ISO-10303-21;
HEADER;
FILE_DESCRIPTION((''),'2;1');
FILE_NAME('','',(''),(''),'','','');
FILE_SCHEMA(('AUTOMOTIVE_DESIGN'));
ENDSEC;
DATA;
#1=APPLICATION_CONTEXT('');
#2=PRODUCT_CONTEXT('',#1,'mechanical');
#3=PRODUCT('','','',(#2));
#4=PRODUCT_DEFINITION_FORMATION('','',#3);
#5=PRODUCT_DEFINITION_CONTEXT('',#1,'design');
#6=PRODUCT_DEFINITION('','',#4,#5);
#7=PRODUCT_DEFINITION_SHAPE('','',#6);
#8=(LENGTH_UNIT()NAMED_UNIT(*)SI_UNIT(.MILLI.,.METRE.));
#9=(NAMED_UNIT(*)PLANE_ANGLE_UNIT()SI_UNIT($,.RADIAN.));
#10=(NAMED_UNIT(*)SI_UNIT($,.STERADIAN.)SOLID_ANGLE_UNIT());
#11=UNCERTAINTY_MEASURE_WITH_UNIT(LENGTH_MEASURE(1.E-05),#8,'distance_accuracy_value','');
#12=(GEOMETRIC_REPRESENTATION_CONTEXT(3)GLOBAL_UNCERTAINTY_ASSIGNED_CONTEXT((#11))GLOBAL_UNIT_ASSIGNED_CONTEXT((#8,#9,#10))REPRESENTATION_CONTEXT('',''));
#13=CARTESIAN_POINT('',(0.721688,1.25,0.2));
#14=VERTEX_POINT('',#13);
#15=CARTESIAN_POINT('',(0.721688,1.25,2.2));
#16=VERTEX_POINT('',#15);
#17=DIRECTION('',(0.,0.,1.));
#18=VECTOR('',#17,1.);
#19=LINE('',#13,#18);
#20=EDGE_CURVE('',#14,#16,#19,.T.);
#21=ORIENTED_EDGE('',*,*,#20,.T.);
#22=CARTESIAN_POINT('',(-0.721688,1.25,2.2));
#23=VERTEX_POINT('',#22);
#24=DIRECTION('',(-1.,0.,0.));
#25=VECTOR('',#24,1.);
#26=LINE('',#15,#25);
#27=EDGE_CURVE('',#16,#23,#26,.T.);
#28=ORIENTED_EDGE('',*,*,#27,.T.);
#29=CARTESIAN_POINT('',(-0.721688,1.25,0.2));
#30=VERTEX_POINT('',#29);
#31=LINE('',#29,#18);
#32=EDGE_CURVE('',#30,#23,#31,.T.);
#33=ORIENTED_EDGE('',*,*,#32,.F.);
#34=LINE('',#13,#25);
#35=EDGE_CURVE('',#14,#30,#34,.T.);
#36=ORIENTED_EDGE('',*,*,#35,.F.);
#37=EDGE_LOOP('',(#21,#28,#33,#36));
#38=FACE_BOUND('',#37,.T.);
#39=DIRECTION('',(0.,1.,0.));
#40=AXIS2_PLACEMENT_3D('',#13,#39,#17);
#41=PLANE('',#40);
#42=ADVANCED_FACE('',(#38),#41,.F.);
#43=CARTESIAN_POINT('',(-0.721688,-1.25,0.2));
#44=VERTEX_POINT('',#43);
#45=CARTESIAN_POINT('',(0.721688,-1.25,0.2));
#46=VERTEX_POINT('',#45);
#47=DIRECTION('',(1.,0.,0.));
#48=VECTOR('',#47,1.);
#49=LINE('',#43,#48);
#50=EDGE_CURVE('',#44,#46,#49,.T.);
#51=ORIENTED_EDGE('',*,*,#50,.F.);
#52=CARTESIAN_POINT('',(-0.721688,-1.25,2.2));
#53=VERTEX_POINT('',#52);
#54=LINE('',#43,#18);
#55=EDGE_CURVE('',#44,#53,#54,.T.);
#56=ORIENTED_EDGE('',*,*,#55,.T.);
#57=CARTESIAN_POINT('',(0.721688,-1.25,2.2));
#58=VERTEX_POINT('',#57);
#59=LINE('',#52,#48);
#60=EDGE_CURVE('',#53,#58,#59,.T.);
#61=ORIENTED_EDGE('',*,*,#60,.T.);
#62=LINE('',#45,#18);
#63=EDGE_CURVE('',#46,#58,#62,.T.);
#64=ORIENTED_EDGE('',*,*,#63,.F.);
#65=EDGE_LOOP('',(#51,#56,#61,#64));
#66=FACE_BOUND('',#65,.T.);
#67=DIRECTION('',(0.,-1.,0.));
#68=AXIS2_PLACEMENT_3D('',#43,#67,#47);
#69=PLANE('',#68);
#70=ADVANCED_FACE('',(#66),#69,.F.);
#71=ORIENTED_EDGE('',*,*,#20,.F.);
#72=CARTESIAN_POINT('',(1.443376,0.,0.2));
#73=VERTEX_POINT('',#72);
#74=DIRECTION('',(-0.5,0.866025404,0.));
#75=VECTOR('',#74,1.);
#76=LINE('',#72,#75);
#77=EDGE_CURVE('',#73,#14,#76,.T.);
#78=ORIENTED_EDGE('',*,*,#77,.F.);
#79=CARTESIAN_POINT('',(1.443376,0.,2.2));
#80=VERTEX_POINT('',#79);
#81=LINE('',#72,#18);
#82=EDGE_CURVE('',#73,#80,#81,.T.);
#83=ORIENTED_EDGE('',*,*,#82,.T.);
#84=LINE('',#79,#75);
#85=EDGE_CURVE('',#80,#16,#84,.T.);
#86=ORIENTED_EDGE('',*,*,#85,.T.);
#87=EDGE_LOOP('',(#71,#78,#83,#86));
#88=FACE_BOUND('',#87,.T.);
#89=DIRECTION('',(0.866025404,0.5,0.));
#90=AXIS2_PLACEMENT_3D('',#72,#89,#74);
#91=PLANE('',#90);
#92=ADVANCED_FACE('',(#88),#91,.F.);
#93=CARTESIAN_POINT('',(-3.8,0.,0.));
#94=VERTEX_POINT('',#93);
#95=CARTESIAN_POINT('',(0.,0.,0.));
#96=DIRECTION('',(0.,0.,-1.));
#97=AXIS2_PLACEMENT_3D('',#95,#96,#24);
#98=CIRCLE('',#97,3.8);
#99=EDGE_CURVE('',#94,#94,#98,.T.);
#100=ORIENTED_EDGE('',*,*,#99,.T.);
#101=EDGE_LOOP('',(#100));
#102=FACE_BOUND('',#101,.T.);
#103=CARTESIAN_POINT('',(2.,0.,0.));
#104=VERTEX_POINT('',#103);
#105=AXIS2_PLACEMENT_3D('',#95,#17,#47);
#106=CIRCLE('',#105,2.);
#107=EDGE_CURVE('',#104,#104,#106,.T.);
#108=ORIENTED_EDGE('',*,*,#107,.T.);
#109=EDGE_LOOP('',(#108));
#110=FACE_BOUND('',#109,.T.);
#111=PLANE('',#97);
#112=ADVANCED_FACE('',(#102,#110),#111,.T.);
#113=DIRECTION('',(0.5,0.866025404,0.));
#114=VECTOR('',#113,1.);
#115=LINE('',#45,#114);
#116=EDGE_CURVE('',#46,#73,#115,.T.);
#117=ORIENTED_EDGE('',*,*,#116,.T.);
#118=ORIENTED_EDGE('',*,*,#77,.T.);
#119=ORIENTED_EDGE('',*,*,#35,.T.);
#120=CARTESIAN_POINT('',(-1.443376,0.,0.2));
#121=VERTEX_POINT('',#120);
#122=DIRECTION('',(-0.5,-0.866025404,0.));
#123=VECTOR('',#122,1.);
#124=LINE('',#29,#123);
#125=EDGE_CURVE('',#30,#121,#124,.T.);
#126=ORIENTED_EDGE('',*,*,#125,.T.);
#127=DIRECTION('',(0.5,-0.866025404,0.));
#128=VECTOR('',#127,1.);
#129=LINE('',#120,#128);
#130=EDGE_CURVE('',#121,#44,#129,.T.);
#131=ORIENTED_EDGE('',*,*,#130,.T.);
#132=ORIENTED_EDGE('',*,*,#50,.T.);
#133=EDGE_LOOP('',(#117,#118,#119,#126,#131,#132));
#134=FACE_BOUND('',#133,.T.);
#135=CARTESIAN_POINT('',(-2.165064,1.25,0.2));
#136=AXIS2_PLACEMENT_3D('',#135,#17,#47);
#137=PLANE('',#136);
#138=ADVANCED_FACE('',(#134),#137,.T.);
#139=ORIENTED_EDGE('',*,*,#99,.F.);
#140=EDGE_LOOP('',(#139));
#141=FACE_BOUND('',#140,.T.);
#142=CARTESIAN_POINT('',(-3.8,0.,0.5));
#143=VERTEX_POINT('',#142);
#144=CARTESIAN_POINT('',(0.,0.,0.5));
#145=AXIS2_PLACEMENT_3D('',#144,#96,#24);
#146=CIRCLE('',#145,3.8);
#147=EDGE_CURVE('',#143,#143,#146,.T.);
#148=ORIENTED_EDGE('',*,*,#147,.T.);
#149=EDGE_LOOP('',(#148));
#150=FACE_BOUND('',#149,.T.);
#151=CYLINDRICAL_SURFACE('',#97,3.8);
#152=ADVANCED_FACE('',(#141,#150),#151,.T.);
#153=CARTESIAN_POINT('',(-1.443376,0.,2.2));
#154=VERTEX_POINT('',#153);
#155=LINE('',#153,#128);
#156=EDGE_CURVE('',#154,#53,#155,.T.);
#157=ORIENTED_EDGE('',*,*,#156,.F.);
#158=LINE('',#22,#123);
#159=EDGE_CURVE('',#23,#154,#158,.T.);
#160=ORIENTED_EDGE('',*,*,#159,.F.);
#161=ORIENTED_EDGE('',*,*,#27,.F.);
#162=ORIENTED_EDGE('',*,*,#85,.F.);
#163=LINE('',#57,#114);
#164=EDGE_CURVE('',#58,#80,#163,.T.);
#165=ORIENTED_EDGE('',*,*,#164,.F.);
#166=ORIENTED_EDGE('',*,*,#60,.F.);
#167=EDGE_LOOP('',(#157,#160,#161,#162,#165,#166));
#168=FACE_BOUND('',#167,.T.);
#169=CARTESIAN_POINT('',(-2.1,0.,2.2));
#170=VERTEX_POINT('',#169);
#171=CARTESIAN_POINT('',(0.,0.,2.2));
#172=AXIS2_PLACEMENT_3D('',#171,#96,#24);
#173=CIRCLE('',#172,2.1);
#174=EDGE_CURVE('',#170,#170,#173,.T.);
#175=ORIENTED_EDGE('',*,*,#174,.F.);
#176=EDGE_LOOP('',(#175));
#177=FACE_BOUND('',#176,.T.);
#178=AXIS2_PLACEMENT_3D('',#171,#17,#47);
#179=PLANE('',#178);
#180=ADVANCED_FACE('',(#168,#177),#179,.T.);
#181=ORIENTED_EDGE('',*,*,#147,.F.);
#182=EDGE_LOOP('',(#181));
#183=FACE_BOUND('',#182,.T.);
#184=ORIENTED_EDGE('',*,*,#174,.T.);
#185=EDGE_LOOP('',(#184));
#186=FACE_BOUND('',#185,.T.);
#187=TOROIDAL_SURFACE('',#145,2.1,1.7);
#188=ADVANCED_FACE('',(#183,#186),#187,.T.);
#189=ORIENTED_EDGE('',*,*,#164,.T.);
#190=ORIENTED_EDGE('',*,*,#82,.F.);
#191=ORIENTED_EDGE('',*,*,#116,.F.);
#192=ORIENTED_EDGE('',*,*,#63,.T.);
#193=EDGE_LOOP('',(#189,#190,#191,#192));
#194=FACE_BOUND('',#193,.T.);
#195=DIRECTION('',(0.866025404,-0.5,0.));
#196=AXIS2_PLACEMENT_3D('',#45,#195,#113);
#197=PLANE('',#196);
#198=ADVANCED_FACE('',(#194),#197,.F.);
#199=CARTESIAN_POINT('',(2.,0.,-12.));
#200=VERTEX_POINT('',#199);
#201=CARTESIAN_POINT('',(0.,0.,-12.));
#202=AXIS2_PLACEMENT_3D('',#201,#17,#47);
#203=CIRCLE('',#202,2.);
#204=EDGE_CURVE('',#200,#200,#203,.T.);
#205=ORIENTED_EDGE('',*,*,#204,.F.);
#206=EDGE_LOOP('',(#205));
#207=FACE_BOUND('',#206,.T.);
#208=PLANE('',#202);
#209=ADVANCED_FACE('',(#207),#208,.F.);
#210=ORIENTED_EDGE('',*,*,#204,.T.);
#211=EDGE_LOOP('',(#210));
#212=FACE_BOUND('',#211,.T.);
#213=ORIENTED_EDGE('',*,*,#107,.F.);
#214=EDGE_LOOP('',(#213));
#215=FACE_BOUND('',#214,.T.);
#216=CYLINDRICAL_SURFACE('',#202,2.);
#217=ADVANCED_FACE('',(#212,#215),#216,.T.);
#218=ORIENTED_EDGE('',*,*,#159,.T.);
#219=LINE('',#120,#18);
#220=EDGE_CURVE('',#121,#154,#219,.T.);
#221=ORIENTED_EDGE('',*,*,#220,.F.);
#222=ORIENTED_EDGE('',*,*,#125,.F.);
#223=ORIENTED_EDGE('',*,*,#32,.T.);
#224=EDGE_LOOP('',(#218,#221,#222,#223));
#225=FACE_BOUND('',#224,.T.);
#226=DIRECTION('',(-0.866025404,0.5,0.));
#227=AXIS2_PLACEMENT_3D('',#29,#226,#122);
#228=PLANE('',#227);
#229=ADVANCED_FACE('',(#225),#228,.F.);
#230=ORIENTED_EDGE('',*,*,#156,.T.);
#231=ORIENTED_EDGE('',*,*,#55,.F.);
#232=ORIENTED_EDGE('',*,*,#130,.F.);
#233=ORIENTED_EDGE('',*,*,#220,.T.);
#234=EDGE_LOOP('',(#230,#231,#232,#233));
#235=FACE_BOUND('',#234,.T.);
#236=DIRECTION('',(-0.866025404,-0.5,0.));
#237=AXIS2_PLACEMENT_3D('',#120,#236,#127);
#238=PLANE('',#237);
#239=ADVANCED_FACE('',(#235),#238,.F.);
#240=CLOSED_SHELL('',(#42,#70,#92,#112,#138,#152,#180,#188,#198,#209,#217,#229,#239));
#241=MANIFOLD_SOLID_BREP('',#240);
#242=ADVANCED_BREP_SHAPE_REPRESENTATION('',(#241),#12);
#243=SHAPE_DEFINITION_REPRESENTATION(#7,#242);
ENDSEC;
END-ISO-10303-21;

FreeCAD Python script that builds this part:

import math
import FreeCAD as App
import Part
import Sketcher

V = App.Vector
Q = App.Units.Quantity

doc = App.newDocument("Part")
params = doc.addObject("Spreadsheet::Sheet", "Params")
for row, (alias, value) in enumerate([
    ("sketch1_diameter", "4 mm"),
    ("pad1_length", "12 mm"),
    ("sketch2_radius", "1.7 mm"),
    ("sketch2_width", "3.8 mm"),
    ("sketch2_height", "0.5 mm"),
    ("revolution_angle", "360 deg"),
    ("pocket1_length", "2 mm"),
], start=1):
    params.set(f"A{row}", alias)
    params.set(f"B{row}", "=" + value)
    params.setAlias(f"B{row}", alias)

body = doc.addObject("PartDesign::Body", "Body")

sketch1 = doc.addObject("Sketcher::SketchObject", "Sketch")
body.addObject(sketch1)
sketch1.AttachmentSupport = (doc.XY_Plane, [""])
sketch1.MapMode = "FlatFace"
sketch1.addGeometry(Part.Circle(V(0, 0, 0), V(0, 0, 1), 2), False)
sketch1.addConstraint([
    Sketcher.Constraint("Coincident", 0, 3, -1, 1),
    Sketcher.Constraint("Diameter", 0, 4.0),
])
sketch1.setExpression("Constraints[1]", "Params.sketch1_diameter")
pad1 = doc.addObject("PartDesign::Pad", "Pad")
body.addObject(pad1)
pad1.Profile = sketch1
pad1.setExpression("Length", "Params.pad1_length")
pad1.Reversed = True

sketch2 = doc.addObject("Sketcher::SketchObject", "Sketch001")
body.addObject(sketch2)
sketch2.AttachmentSupport = (doc.YZ_Plane, [""])
sketch2.MapMode = "FlatFace"
sketch2.addGeometry([
    Part.LineSegment(V(0, 0, 0), V(3.8, 0, 0)),
    Part.LineSegment(V(3.8, 0, 0), V(3.8, 0.5, 0)),
    Part.ArcOfCircle(Part.Circle(V(2.1, 0.5, 0), V(0, 0, 1), 1.7), math.radians(0), math.radians(90)),
    Part.LineSegment(V(2.1, 2.2, 0), V(0, 2.2, 0)),
    Part.LineSegment(V(0, 2.2, 0), V(0, 0, 0)),
], False)
sketch2.addConstraint([
    Sketcher.Constraint("Coincident", 0, 2, 1, 1),
    Sketcher.Constraint("Tangent", 1, 2, 2, 1),
    Sketcher.Constraint("Tangent", 2, 2, 3, 1),
    Sketcher.Constraint("Coincident", 3, 2, 4, 1),
    Sketcher.Constraint("Coincident", 4, 2, 0, 1),
    Sketcher.Constraint("Horizontal", 0),
    Sketcher.Constraint("Vertical", 1),
    Sketcher.Constraint("Horizontal", 3),
    Sketcher.Constraint("Vertical", 4),
    Sketcher.Constraint("Coincident", 4, 2, -1, 1),
    Sketcher.Constraint("Radius", 2, 1.7),
    Sketcher.Constraint("DistanceX", 0, 1, 0, 2, 3.8),
    Sketcher.Constraint("DistanceY", 1, 1, 1, 2, 0.5),
])
sketch2.setExpression("Constraints[10]", "Params.sketch2_radius")
sketch2.setExpression("Constraints[11]", "Params.sketch2_width")
sketch2.setExpression("Constraints[12]", "Params.sketch2_height")
revolution = doc.addObject("PartDesign::Revolution", "Revolution")
body.addObject(revolution)
revolution.Profile = sketch2
revolution.ReferenceAxis = (sketch2, ["V_Axis"])
revolution.setExpression("Angle", "Params.revolution_angle")

sketch3 = doc.addObject("Sketcher::SketchObject", "Sketch002")
body.addObject(sketch3)
sketch3.AttachmentSupport = (doc.XY_Plane, [""])
sketch3.MapMode = "FlatFace"
sketch3.AttachmentOffset = App.Placement(V(0, 0, 2.2), App.Rotation())
sketch3.addGeometry([
    Part.LineSegment(V(-0.7, 1.2, 0), V(-1.4, 0, 0)),
    Part.LineSegment(V(-1.4, 0, 0), V(-0.7, -1.2, 0)),
    Part.LineSegment(V(-0.7, -1.2, 0), V(0.7, -1.2, 0)),
    Part.LineSegment(V(0.7, -1.2, 0), V(1.4, 0, 0)),
    Part.LineSegment(V(1.4, 0, 0), V(0.7, 1.2, 0)),
    Part.LineSegment(V(0.7, 1.2, 0), V(-0.7, 1.2, 0)),
], False)
sketch3.addConstraint([
    Sketcher.Constraint("Coincident", 0, 2, 1, 1),
    Sketcher.Constraint("Coincident", 1, 2, 2, 1),
    Sketcher.Constraint("Coincident", 2, 2, 3, 1),
    Sketcher.Constraint("Coincident", 3, 2, 4, 1),
    Sketcher.Constraint("Coincident", 4, 2, 5, 1),
    Sketcher.Constraint("Coincident", 5, 2, 0, 1),
    Sketcher.Constraint("Horizontal", 2),
    Sketcher.Constraint("Horizontal", 5),
    Sketcher.Constraint("Symmetric", 0, 2, 3, 2, -1, 1),
    Sketcher.Constraint("Symmetric", 1, 2, 4, 2, -1, 1),
    Sketcher.Constraint("PointOnObject", 0, 2, -1),
    Sketcher.Constraint("Parallel", 0, 3),
    Sketcher.Constraint("Vertical", 2, 2, 4, 2),
    Sketcher.Constraint("Angle", 0, Q("-120 deg")),
    Sketcher.Constraint("DistanceY", 2, 2, 4, 2, 2.5),
    Sketcher.Constraint("DistanceX", 2, 1, 2, 2, 1.443376),
])
pocket1 = doc.addObject("PartDesign::Pocket", "Pocket")
body.addObject(pocket1)
pocket1.Profile = sketch3
pocket1.setExpression("Length", "Params.pocket1_length")

doc.recompute()
